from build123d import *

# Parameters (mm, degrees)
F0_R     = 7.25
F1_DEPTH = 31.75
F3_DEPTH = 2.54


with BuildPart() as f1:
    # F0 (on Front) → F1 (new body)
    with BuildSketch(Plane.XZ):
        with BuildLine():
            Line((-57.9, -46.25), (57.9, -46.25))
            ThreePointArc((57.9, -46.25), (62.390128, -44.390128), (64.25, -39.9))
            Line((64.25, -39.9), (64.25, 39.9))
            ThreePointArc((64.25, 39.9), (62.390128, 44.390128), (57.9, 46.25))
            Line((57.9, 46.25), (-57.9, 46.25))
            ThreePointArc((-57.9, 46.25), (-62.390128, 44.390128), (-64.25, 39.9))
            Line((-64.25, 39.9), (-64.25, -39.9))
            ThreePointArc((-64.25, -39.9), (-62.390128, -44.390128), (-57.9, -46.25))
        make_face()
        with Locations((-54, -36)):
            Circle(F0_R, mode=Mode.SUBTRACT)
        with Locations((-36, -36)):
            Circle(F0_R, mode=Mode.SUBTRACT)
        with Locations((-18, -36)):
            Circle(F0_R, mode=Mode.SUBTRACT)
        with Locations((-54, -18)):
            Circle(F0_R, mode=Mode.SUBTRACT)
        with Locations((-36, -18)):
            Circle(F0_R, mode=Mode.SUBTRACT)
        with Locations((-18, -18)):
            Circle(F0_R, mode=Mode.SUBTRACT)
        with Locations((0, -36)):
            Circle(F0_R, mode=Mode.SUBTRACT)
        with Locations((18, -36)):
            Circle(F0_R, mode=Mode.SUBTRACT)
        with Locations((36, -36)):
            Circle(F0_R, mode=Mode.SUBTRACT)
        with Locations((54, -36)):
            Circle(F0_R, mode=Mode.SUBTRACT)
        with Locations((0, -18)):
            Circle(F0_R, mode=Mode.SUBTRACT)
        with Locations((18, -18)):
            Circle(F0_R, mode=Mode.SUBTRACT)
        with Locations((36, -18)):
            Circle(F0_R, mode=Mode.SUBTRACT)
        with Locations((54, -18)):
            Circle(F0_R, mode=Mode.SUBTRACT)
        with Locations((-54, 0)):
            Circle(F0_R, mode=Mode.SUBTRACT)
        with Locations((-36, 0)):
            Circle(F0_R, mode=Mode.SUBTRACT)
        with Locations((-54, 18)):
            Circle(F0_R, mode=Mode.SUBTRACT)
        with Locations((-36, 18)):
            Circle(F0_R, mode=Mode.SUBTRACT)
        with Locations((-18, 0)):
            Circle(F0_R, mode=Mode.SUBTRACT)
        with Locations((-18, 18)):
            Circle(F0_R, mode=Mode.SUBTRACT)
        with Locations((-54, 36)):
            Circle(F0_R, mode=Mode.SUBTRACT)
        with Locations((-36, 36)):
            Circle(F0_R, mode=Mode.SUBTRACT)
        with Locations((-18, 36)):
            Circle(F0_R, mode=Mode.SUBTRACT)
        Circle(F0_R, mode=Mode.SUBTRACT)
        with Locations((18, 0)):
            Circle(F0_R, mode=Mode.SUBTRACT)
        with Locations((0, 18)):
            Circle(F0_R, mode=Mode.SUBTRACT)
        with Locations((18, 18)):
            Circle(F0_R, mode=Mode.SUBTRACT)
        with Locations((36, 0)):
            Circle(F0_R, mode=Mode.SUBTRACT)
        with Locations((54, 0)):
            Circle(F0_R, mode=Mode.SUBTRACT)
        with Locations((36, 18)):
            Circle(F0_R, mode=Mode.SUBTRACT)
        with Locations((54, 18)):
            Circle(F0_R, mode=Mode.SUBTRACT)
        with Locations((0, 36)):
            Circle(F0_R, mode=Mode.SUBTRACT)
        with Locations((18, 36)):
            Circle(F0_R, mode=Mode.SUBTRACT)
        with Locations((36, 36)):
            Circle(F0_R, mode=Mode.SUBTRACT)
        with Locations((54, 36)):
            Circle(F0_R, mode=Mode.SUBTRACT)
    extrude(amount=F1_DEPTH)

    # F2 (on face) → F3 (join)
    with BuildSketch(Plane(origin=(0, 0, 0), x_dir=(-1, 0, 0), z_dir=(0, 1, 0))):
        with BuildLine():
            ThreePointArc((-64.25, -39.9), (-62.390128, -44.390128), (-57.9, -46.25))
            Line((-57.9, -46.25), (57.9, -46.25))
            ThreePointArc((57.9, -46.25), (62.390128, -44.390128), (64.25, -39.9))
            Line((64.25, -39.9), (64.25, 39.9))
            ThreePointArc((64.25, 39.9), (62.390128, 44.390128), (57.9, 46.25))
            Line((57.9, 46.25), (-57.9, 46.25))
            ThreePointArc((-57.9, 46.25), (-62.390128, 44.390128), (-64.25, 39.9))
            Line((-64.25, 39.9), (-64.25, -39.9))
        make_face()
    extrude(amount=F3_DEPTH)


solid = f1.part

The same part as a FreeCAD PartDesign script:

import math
import FreeCAD as App
import Part
import Sketcher

V = App.Vector
Q = App.Units.Quantity

doc = App.newDocument("Part")
body = doc.addObject("PartDesign::Body", "Body")

sketch1 = body.newObject("Sketcher::SketchObject", "Sketch")
sketch1.AttachmentSupport = (doc.getObject("XZ_Plane"), [""])
sketch1.MapMode = "FlatFace"
sketch1.addGeometry(Part.LineSegment(V(-57.9, -46.25, 0), V(57.9, -46.25, 0)), False)
sketch1.addGeometry(Part.ArcOfCircle(Part.Circle(V(57.9, -39.9, 0), V(0, 0, 1), 6.35), math.radians(-89.999998), math.radians(-0.000002)), False)
sketch1.addGeometry(Part.LineSegment(V(64.25, -39.9, 0), V(64.25, 39.9, 0)), False)
sketch1.addGeometry(Part.ArcOfCircle(Part.Circle(V(57.9, 39.9, 0), V(0, 0, 1), 6.35), math.radians(0.000002), math.radians(89.999998)), False)
sketch1.addGeometry(Part.LineSegment(V(57.9, 46.25, 0), V(-57.9, 46.25, 0)), False)
sketch1.addGeometry(Part.ArcOfCircle(Part.Circle(V(-57.9, 39.9, 0), V(0, 0, 1), 6.35), math.radians(90.000002), math.radians(179.999998)), False)
sketch1.addGeometry(Part.LineSegment(V(-64.25, 39.9, 0), V(-64.25, -39.9, 0)), False)
sketch1.addGeometry(Part.ArcOfCircle(Part.Circle(V(-57.9, -39.9, 0), V(0, 0, 1), 6.35), math.radians(-179.999998), math.radians(-90.000002)), False)
sketch1.addGeometry(Part.Circle(V(-54, -36, 0), V(0, 0, 1), 7.25), False)
sketch1.addGeometry(Part.Circle(V(-36, -36, 0), V(0, 0, 1), 7.25), False)
sketch1.addGeometry(Part.Circle(V(-18, -36, 0), V(0, 0, 1), 7.25), False)
sketch1.addGeometry(Part.Circle(V(-54, -18, 0), V(0, 0, 1), 7.25), False)
sketch1.addGeometry(Part.Circle(V(-36, -18, 0), V(0, 0, 1), 7.25), False)
sketch1.addGeometry(Part.Circle(V(-18, -18, 0), V(0, 0, 1), 7.25), False)
sketch1.addGeometry(Part.Circle(V(0, -36, 0), V(0, 0, 1), 7.25), False)
sketch1.addGeometry(Part.Circle(V(18, -36, 0), V(0, 0, 1), 7.25), False)
sketch1.addGeometry(Part.Circle(V(36, -36, 0), V(0, 0, 1), 7.25), False)
sketch1.addGeometry(Part.Circle(V(54, -36, 0), V(0, 0, 1), 7.25), False)
sketch1.addGeometry(Part.Circle(V(0, -18, 0), V(0, 0, 1), 7.25), False)
sketch1.addGeometry(Part.Circle(V(18, -18, 0), V(0, 0, 1), 7.25), False)
sketch1.addGeometry(Part.Circle(V(36, -18, 0), V(0, 0, 1), 7.25), False)
sketch1.addGeometry(Part.Circle(V(54, -18, 0), V(0, 0, 1), 7.25), False)
sketch1.addGeometry(Part.Circle(V(-54, 0, 0), V(0, 0, 1), 7.25), False)
sketch1.addGeometry(Part.Circle(V(-36, 0, 0), V(0, 0, 1), 7.25), False)
sketch1.addGeometry(Part.Circle(V(-54, 18, 0), V(0, 0, 1), 7.25), False)
sketch1.addGeometry(Part.Circle(V(-36, 18, 0), V(0, 0, 1), 7.25), False)
sketch1.addGeometry(Part.Circle(V(-18, 0, 0), V(0, 0, 1), 7.25), False)
sketch1.addGeometry(Part.Circle(V(-18, 18, 0), V(0, 0, 1), 7.25), False)
sketch1.addGeometry(Part.Circle(V(-54, 36, 0), V(0, 0, 1), 7.25), False)
sketch1.addGeometry(Part.Circle(V(-36, 36, 0), V(0, 0, 1), 7.25), False)
sketch1.addGeometry(Part.Circle(V(-18, 36, 0), V(0, 0, 1), 7.25), False)
sketch1.addGeometry(Part.Circle(V(0, 0, 0), V(0, 0, 1), 7.25), False)
sketch1.addGeometry(Part.Circle(V(18, 0, 0), V(0, 0, 1), 7.25), False)
sketch1.addGeometry(Part.Circle(V(0, 18, 0), V(0, 0, 1), 7.25), False)
sketch1.addGeometry(Part.Circle(V(18, 18, 0), V(0, 0, 1), 7.25), False)
sketch1.addGeometry(Part.Circle(V(36, 0, 0), V(0, 0, 1), 7.25), False)
sketch1.addGeometry(Part.Circle(V(54, 0, 0), V(0, 0, 1), 7.25), False)
sketch1.addGeometry(Part.Circle(V(36, 18, 0), V(0, 0, 1), 7.25), False)
sketch1.addGeometry(Part.Circle(V(54, 18, 0), V(0, 0, 1), 7.25), False)
sketch1.addGeometry(Part.Circle(V(0, 36, 0), V(0, 0, 1), 7.25), False)
sketch1.addGeometry(Part.Circle(V(18, 36, 0), V(0, 0, 1), 7.25), False)
sketch1.addGeometry(Part.Circle(V(36, 36, 0), V(0, 0, 1), 7.25), False)
sketch1.addGeometry(Part.Circle(V(54, 36, 0), V(0, 0, 1), 7.25), False)
sketch1.addConstraint(Sketcher.Constraint("Tangent", 0, 2, 1, 1))
sketch1.addConstraint(Sketcher.Constraint("Tangent", 1, 2, 2, 1))
sketch1.addConstraint(Sketcher.Constraint("Tangent", 2, 2, 3, 1))
sketch1.addConstraint(Sketcher.Constraint("Tangent", 3, 2, 4, 1))
sketch1.addConstraint(Sketcher.Constraint("Tangent", 4, 2, 5, 1))
sketch1.addConstraint(Sketcher.Constraint("Tangent", 5, 2, 6, 1))
sketch1.addConstraint(Sketcher.Constraint("Tangent", 6, 2, 7, 1))
sketch1.addConstraint(Sketcher.Constraint("Tangent", 7, 2, 0, 1))
sketch1.addConstraint(Sketcher.Constraint("Horizontal", 0))
sketch1.addConstraint(Sketcher.Constraint("Vertical", 2))
sketch1.addConstraint(Sketcher.Constraint("Horizontal", 4))
sketch1.addConstraint(Sketcher.Constraint("Vertical", 6))
sketch1.addConstraint(Sketcher.Constraint("Coincident", 31, 3, -1, 1))
sketch1.addConstraint(Sketcher.Constraint("Equal", 1, 3))
sketch1.addConstraint(Sketcher.Constraint("Equal", 3, 5))
sketch1.addConstraint(Sketcher.Constraint("Equal", 5, 7))
sketch1.addConstraint(Sketcher.Constraint("Equal", 8, 9))
sketch1.addConstraint(Sketcher.Constraint("Equal", 9, 10))
sketch1.addConstraint(Sketcher.Constraint("Equal", 10, 11))
sketch1.addConstraint(Sketcher.Constraint("Equal", 11, 12))
sketch1.addConstraint(Sketcher.Constraint("Equal", 12, 13))
sketch1.addConstraint(Sketcher.Constraint("Equal", 13, 14))
sketch1.addConstraint(Sketcher.Constraint("Equal", 14, 15))
sketch1.addConstraint(Sketcher.Constraint("Equal", 15, 16))
sketch1.addConstraint(Sketcher.Constraint("Equal", 16, 17))
sketch1.addConstraint(Sketcher.Constraint("Equal", 17, 18))
sketch1.addConstraint(Sketcher.Constraint("Equal", 18, 19))
sketch1.addConstraint(Sketcher.Constraint("Equal", 19, 20))
sketch1.addConstraint(Sketcher.Constraint("Equal", 20, 21))
sketch1.addConstraint(Sketcher.Constraint("Equal", 21, 22))
sketch1.addConstraint(Sketcher.Constraint("Equal", 22, 23))
sketch1.addConstraint(Sketcher.Constraint("Equal", 23, 24))
sketch1.addConstraint(Sketcher.Constraint("Equal", 24, 25))
sketch1.addConstraint(Sketcher.Constraint("Equal", 25, 26))
sketch1.addConstraint(Sketcher.Constraint("Equal", 26, 27))
sketch1.addConstraint(Sketcher.Constraint("Equal", 27, 28))
sketch1.addConstraint(Sketcher.Constraint("Equal", 28, 29))
sketch1.addConstraint(Sketcher.Constraint("Equal", 29, 30))
sketch1.addConstraint(Sketcher.Constraint("Equal", 30, 31))
sketch1.addConstraint(Sketcher.Constraint("Equal", 31, 32))
sketch1.addConstraint(Sketcher.Constraint("Equal", 32, 33))
sketch1.addConstraint(Sketcher.Constraint("Equal", 33, 34))
sketch1.addConstraint(Sketcher.Constraint("Equal", 34, 35))
sketch1.addConstraint(Sketcher.Constraint("Equal", 35, 36))
sketch1.addConstraint(Sketcher.Constraint("Equal", 36, 37))
sketch1.addConstraint(Sketcher.Constraint("Equal", 37, 38))
sketch1.addConstraint(Sketcher.Constraint("Equal", 38, 39))
sketch1.addConstraint(Sketcher.Constraint("Equal", 39, 40))
sketch1.addConstraint(Sketcher.Constraint("Equal", 40, 41))
sketch1.addConstraint(Sketcher.Constraint("Equal", 41, 42))
sketch1.addConstraint(Sketcher.Constraint("Symmetric", 1, 3, 5, 3, -1, 1))
sketch1.addConstraint(Sketcher.Constraint("Symmetric", 21, 3, 24, 3, -1, 1))
sketch1.addConstraint(Sketcher.Constraint("Symmetric", 20, 3, 25, 3, -1, 1))
sketch1.addConstraint(Sketcher.Constraint("Symmetric", 19, 3, 27, 3, -1, 1))
sketch1.addConstraint(Sketcher.Constraint("Symmetric", 17, 3, 28, 3, -1, 1))
sketch1.addConstraint(Sketcher.Constraint("Symmetric", 16, 3, 29, 3, -1, 1))
sketch1.addConstraint(Sketcher.Constraint("Symmetric", 15, 3, 30, 3, -1, 1))
sketch1.addConstraint(Sketcher.Constraint("Symmetric", 26, 3, 32, 3, -1, 1))
sketch1.addConstraint(Sketcher.Constraint("Symmetric", 18, 3, 33, 3, -1, 1))
sketch1.addConstraint(Sketcher.Constraint("Symmetric", 13, 3, 34, 3, -1, 1))
sketch1.addConstraint(Sketcher.Constraint("Symmetric", 23, 3, 35, 3, -1, 1))
sketch1.addConstraint(Sketcher.Constraint("Symmetric", 22, 3, 36, 3, -1, 1))
sketch1.addConstraint(Sketcher.Constraint("Symmetric", 12, 3, 37, 3, -1, 1))
sketch1.addConstraint(Sketcher.Constraint("Symmetric", 11, 3, 38, 3, -1, 1))
sketch1.addConstraint(Sketcher.Constraint("Symmetric", 14, 3, 39, 3, -1, 1))
sketch1.addConstraint(Sketcher.Constraint("Symmetric", 10, 3, 40, 3, -1, 1))
sketch1.addConstraint(Sketcher.Constraint("Symmetric", 9, 3, 41, 3, -1, 1))
sketch1.addConstraint(Sketcher.Constraint("Symmetric", 8, 3, 42, 3, -1, 1))
sketch1.addConstraint(Sketcher.Constraint("Symmetric", 10, 3, 15, 3, -2))
sketch1.addConstraint(Sketcher.Constraint("Symmetric", 9, 3, 16, 3, -2))
sketch1.addConstraint(Sketcher.Constraint("Symmetric", 8, 3, 17, 3, -2))
sketch1.addConstraint(Sketcher.Constraint("Symmetric", 13, 3, 19, 3, -2))
sketch1.addConstraint(Sketcher.Constraint("Symmetric", 12, 3, 20, 3, -2))
sketch1.addConstraint(Sketcher.Constraint("Symmetric", 11, 3, 21, 3, -2))
sketch1.addConstraint(Sketcher.Constraint("PointOnObject", 14, 3, -2))
sketch1.addConstraint(Sketcher.Constraint("PointOnObject", 18, 3, -2))
sketch1.addConstraint(Sketcher.Constraint("PointOnObject", 22, 3, -1))
sketch1.addConstraint(Sketcher.Constraint("PointOnObject", 23, 3, -1))
sketch1.addConstraint(Sketcher.Constraint("PointOnObject", 26, 3, -1))
sketch1.addConstraint(Sketcher.Constraint("Horizontal", 8, 3, 9, 3))
sketch1.addConstraint(Sketcher.Constraint("Horizontal", 9, 3, 10, 3))
sketch1.addConstraint(Sketcher.Constraint("Horizontal", 11, 3, 12, 3))
sketch1.addConstraint(Sketcher.Constraint("Horizontal", 12, 3, 13, 3))
sketch1.addConstraint(Sketcher.Constraint("Horizontal", 10, 3, 14, 3))
sketch1.addConstraint(Sketcher.Constraint("Horizontal", 13, 3, 18, 3))
sketch1.addConstraint(Sketcher.Constraint("Vertical", 8, 3, 11, 3))
sketch1.addConstraint(Sketcher.Constraint("Vertical", 9, 3, 12, 3))
sketch1.addConstraint(Sketcher.Constraint("Vertical", 10, 3, 13, 3))
sketch1.addConstraint(Sketcher.Constraint("Vertical", 11, 3, 22, 3))
sketch1.addConstraint(Sketcher.Constraint("Vertical", 12, 3, 23, 3))
sketch1.addConstraint(Sketcher.Constraint("Vertical", 13, 3, 26, 3))
sketch1.addConstraint(Sketcher.Constraint("Diameter", 8, Q("14.5 mm")))
sketch1.addConstraint(Sketcher.Constraint("Radius", 1, Q("6.35 mm")))
sketch1.addConstraint(Sketcher.Constraint("DistanceX", 0, 1, 0, 2, Q("115.8 mm")))
sketch1.addConstraint(Sketcher.Constraint("DistanceY", 2, 1, 2, 2, Q("79.8 mm")))
sketch1.addConstraint(Sketcher.Constraint("DistanceX", 8, 3, -1, 1, Q("54 mm")))
sketch1.addConstraint(Sketcher.Constraint("DistanceY", 8, 3, -1, 1, Q("36 mm")))
sketch1.addConstraint(Sketcher.Constraint("DistanceX", 9, 3, -1, 1, Q("36 mm")))
sketch1.addConstraint(Sketcher.Constraint("DistanceX", 10, 3, -1, 1, Q("18 mm")))
sketch1.addConstraint(Sketcher.Constraint("DistanceY", 11, 3, -1, 1, Q("18 mm")))
pad1 = body.newObject("PartDesign::Pad", "Pad")
pad1.Profile = sketch1
pad1.Length = 31.75

sketch2 = body.newObject("Sketcher::SketchObject", "Sketch001")
sketch2.AttachmentSupport = (doc.getObject("XZ_Plane"), [""])
sketch2.MapMode = "FlatFace"
sketch2.addGeometry(Part.ArcOfCircle(Part.Circle(V(57.9, -39.9, 0), V(0, 0, 1), 6.35), math.radians(-89.999998), math.radians(-0.000002)), False)
sketch2.addGeometry(Part.LineSegment(V(57.9, -46.25, 0), V(-57.9, -46.25, 0)), False)
sketch2.addGeometry(Part.ArcOfCircle(Part.Circle(V(-57.9, -39.9, 0), V(0, 0, 1), 6.35), math.radians(-179.999998), math.radians(-90.000002)), False)
sketch2.addGeometry(Part.LineSegment(V(-64.25, -39.9, 0), V(-64.25, 39.9, 0)), False)
sketch2.addGeometry(Part.ArcOfCircle(Part.Circle(V(-57.9, 39.9, 0), V(0, 0, 1), 6.35), math.radians(90.000002), math.radians(179.999998)), False)
sketch2.addGeometry(Part.LineSegment(V(-57.9, 46.25, 0), V(57.9, 46.25, 0)), False)
sketch2.addGeometry(Part.ArcOfCircle(Part.Circle(V(57.9, 39.9, 0), V(0, 0, 1), 6.35), math.radians(0.000002), math.radians(89.999998)), False)
sketch2.addGeometry(Part.LineSegment(V(64.25, 39.9, 0), V(64.25, -39.9, 0)), False)
sketch2.addConstraint(Sketcher.Constraint("Tangent", 0, 1, 1, 1))
sketch2.addConstraint(Sketcher.Constraint("Tangent", 1, 2, 2, 2))
sketch2.addConstraint(Sketcher.Constraint("Tangent", 2, 1, 3, 1))
sketch2.addConstraint(Sketcher.Constraint("Tangent", 3, 2, 4, 2))
sketch2.addConstraint(Sketcher.Constraint("Tangent", 4, 1, 5, 1))
sketch2.addConstraint(Sketcher.Constraint("Tangent", 5, 2, 6, 2))
sketch2.addConstraint(Sketcher.Constraint("Tangent", 6, 1, 7, 1))
sketch2.addConstraint(Sketcher.Constraint("Tangent", 7, 2, 0, 2))
sketch2.addConstraint(Sketcher.Constraint("Horizontal", 1))
sketch2.addConstraint(Sketcher.Constraint("Vertical", 3))
sketch2.addConstraint(Sketcher.Constraint("Horizontal", 5))
sketch2.addConstraint(Sketcher.Constraint("Vertical", 7))
sketch2.addConstraint(Sketcher.Constraint("Equal", 0, 2))
sketch2.addConstraint(Sketcher.Constraint("Equal", 2, 4))
sketch2.addConstraint(Sketcher.Constraint("Equal", 4, 6))
sketch2.addConstraint(Sketcher.Constraint("Symmetric", 0, 3, 4, 3, -1, 1))
sketch2.addConstraint(Sketcher.Constraint("Radius", 0, Q("6.35 mm")))
sketch2.addConstraint(Sketcher.Constraint("DistanceX", 1, 2, 1, 1, Q("115.8 mm")))
sketch2.addConstraint(Sketcher.Constraint("DistanceY", 3, 1, 3, 2, Q("79.8 mm")))
pad2 = body.newObject("PartDesign::Pad", "Pad001")
pad2.Profile = sketch2
pad2.Length = 2.54
pad2.Reversed = True

doc.recompute()
